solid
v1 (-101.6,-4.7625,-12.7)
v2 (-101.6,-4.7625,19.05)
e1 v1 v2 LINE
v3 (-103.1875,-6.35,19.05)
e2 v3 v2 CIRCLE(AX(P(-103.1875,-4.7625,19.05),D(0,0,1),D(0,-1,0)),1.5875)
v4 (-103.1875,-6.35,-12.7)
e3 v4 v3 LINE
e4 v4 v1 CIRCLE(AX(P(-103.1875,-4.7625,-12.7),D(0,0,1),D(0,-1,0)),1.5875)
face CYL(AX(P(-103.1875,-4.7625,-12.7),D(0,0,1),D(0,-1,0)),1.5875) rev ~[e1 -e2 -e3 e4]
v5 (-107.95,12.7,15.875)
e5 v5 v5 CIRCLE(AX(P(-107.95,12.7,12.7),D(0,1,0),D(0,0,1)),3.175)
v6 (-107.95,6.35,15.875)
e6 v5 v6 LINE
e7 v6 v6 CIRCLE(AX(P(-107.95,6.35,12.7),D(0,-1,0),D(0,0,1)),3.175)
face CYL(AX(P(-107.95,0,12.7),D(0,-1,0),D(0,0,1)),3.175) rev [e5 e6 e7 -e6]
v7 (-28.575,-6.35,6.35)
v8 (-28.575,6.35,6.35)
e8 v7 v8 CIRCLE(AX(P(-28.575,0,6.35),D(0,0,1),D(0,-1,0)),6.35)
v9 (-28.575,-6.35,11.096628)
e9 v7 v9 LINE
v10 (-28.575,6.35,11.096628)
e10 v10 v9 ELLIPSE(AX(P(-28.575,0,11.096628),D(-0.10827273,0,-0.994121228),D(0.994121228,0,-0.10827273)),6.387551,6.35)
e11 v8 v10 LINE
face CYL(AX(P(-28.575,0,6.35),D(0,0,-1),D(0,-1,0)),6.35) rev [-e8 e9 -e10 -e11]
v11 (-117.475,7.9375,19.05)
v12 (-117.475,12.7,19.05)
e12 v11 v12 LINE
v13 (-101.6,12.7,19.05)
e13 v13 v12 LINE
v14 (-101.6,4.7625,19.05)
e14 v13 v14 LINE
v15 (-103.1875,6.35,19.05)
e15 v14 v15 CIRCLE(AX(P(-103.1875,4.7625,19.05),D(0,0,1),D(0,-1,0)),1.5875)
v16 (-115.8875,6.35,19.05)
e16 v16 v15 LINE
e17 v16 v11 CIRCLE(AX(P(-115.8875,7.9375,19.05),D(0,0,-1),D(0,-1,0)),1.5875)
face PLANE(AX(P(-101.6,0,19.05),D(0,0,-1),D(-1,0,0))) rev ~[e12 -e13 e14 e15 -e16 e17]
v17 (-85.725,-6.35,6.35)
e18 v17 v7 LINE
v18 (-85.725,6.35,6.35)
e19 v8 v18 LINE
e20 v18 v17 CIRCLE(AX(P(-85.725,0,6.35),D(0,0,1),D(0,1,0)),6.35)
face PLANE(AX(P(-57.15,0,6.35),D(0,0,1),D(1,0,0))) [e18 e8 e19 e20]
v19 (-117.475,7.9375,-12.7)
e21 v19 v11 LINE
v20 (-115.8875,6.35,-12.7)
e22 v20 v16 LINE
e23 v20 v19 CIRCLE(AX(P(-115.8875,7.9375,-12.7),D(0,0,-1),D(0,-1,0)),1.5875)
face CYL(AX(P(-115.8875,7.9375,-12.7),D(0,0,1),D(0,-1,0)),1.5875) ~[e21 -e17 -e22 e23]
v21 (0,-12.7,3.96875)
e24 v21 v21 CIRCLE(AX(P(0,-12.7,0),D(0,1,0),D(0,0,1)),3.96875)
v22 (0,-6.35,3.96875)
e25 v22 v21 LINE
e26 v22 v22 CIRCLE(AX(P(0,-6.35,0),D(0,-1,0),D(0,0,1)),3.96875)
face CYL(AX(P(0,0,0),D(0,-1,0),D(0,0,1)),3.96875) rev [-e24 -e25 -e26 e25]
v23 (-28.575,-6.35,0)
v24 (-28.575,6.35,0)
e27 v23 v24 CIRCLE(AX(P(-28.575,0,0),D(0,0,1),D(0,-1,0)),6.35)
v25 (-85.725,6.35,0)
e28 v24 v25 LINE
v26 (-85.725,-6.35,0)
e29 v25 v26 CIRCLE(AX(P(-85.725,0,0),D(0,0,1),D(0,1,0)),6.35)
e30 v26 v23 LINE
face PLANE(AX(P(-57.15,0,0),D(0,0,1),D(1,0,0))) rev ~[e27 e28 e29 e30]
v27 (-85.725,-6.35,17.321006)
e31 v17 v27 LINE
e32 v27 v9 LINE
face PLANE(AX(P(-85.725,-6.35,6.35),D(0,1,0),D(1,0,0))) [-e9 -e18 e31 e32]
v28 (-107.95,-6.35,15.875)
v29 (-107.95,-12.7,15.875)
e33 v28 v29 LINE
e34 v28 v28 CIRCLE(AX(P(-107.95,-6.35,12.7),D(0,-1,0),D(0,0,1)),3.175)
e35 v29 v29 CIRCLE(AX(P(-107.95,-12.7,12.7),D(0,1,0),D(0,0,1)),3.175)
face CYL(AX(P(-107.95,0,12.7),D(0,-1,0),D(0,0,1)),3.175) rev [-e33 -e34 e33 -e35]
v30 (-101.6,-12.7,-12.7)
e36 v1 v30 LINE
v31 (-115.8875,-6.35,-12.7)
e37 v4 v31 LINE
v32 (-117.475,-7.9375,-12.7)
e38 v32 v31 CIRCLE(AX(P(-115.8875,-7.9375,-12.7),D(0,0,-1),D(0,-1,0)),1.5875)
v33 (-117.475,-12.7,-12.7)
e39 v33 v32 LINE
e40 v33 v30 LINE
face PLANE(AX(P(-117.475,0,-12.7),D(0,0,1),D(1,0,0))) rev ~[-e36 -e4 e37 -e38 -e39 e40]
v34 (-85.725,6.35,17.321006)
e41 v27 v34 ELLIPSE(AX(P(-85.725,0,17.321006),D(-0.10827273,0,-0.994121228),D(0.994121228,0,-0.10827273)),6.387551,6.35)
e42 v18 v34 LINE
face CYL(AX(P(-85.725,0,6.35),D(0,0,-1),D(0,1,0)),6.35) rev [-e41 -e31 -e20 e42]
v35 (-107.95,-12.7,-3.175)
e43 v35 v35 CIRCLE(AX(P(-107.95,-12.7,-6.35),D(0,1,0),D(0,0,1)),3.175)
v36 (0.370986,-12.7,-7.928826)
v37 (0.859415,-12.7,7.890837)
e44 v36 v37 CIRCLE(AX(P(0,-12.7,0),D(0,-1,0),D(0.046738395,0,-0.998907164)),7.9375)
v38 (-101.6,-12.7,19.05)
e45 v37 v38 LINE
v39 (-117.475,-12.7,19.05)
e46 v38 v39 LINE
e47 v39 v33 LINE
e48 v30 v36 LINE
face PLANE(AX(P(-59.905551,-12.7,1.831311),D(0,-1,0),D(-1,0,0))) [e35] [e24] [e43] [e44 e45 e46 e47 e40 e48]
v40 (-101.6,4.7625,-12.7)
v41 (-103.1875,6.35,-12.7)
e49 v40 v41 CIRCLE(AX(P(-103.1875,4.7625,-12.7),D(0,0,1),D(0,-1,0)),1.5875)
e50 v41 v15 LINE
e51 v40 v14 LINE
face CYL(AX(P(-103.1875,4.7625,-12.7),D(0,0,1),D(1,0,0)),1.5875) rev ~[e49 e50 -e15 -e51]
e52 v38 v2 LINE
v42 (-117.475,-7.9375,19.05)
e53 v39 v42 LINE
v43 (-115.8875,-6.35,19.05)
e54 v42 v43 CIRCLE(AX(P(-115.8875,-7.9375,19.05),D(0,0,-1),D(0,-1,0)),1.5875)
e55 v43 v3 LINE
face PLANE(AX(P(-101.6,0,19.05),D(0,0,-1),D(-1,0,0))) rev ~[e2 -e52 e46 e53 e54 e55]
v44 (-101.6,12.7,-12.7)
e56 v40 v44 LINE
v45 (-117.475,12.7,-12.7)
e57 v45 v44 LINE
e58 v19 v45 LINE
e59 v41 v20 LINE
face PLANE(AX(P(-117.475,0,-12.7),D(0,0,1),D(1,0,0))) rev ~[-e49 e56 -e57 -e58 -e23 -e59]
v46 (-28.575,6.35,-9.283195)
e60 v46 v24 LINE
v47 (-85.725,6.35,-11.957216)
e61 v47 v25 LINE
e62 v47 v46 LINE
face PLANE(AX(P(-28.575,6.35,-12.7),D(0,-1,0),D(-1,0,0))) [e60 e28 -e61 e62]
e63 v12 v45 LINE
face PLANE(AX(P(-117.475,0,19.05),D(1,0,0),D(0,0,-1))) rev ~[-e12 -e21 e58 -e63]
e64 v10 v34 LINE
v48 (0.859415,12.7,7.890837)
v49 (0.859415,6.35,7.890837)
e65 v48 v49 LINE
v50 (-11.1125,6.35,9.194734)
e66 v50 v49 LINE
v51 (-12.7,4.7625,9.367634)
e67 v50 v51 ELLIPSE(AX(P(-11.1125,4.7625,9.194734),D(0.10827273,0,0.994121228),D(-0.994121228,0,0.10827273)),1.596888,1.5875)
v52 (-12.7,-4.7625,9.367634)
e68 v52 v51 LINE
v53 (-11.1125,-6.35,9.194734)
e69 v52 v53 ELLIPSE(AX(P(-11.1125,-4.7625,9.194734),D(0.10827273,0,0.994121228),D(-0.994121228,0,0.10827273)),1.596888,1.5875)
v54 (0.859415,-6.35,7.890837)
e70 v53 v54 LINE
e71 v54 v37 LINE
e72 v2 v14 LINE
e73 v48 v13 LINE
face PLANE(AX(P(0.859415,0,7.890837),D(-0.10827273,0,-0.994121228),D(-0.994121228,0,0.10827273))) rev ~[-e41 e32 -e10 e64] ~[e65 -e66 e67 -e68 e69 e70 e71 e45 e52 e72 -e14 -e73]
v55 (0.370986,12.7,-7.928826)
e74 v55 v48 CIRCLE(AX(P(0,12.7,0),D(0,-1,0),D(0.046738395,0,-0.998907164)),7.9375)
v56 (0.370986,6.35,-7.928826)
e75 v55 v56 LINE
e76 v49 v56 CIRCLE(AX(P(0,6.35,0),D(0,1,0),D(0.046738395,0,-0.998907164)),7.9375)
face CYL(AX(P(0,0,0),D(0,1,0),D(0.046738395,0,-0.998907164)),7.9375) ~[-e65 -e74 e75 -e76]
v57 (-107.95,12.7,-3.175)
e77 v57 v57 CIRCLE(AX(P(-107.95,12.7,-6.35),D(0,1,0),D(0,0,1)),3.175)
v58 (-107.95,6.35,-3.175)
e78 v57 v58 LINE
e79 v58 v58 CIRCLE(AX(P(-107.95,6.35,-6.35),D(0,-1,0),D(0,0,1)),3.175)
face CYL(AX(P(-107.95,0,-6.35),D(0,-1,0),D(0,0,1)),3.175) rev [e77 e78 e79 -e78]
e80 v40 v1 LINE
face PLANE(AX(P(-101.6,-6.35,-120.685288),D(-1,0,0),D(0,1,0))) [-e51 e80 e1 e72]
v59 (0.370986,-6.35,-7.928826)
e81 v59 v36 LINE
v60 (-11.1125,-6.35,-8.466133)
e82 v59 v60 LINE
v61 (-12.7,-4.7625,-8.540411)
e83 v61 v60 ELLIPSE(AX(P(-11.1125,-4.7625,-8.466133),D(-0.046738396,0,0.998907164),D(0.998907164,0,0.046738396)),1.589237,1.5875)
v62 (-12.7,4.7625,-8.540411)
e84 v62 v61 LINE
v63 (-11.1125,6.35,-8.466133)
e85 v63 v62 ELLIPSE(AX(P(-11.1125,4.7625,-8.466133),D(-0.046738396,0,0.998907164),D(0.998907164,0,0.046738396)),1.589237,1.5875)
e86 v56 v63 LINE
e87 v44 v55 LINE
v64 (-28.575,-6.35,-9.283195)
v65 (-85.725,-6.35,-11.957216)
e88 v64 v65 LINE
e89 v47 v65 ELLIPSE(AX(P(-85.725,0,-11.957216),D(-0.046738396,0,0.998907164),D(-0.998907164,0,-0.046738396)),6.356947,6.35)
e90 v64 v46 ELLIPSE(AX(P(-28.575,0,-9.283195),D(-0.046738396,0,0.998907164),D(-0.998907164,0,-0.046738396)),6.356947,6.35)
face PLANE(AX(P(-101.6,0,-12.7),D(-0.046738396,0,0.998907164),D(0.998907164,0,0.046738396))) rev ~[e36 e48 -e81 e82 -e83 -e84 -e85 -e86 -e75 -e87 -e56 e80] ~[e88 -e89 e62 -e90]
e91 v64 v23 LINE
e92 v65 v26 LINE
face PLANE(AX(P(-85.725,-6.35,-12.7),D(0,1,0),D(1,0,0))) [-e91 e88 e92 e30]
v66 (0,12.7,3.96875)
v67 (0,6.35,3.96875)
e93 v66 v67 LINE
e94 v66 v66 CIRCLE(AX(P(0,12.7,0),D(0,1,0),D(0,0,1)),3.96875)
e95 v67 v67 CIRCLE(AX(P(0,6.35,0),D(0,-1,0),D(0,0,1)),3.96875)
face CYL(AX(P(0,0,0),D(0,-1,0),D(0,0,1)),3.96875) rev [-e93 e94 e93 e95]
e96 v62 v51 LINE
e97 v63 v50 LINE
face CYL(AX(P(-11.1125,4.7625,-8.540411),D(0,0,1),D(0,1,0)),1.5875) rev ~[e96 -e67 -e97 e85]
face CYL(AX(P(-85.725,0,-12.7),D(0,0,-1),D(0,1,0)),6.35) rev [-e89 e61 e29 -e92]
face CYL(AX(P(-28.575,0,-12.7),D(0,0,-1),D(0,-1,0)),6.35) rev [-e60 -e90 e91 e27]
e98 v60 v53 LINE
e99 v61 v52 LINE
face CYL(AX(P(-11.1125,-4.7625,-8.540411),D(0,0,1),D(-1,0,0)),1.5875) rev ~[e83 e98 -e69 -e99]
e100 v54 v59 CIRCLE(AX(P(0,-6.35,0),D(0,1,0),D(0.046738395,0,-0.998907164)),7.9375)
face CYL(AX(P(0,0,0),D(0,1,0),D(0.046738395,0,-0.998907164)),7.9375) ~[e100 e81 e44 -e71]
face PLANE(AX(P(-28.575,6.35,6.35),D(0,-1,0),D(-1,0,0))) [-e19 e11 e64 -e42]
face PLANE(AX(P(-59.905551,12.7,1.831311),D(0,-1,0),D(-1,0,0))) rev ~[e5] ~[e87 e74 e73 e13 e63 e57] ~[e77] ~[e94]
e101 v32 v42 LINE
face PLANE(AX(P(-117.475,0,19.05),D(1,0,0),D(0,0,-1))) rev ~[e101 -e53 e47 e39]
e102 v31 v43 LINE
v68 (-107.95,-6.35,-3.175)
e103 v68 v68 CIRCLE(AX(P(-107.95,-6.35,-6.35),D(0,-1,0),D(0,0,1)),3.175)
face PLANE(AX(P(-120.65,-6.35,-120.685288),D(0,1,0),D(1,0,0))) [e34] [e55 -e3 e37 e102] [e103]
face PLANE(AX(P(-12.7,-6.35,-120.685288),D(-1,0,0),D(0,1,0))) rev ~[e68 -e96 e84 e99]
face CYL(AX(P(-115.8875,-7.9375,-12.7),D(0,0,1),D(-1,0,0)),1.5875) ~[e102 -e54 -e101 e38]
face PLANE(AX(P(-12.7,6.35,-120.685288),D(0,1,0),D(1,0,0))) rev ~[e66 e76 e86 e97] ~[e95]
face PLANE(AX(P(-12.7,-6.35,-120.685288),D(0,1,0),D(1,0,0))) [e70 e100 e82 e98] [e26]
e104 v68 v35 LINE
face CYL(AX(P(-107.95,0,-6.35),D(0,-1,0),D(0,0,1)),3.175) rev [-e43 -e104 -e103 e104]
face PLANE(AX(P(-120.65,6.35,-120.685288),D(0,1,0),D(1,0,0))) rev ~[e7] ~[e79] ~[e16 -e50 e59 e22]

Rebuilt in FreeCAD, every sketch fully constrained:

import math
import FreeCAD as App
import Part
import Sketcher
from FreeCAD import Vector
Q = App.Units.Quantity


def edges_at(feature, points):
    """Names of the edges that pass closest to the given points."""
    edges = feature.Shape.Edges
    near = lambda p: min(range(len(edges)), key=lambda i: edges[i].distToShape(Part.Vertex(*p))[0])
    return sorted({f"Edge{near(p) + 1}" for p in points})


def add_polygon(sketch, points):
    """Adds a closed chain of lines whose ends are joined by coincident constraints."""
    first, n = sketch.GeometryCount, len(points)
    for a, b in zip(points, points[1:] + points[:1]):
        sketch.addGeometry(Part.LineSegment(App.Vector(*a, 0), App.Vector(*b, 0)), False)
    for i in range(n):
        sketch.addConstraint(Sketcher.Constraint("Coincident", first + i, 2, first + (i + 1) % n, 1))

doc = App.newDocument("Part")
body = doc.addObject("PartDesign::Body", "Body")

sketch1 = body.newObject("Sketcher::SketchObject", "Sketch")
sketch1.AttachmentSupport = (doc.getObject("XZ_Plane"), [""])
sketch1.MapMode = "FlatFace"
sketch1.addGeometry(Part.LineSegment(Vector(-101.6, -12.7, 0), Vector(-117.475, -12.7, 0)), False)
sketch1.addGeometry(Part.LineSegment(Vector(-117.475, -12.7, 0), Vector(-117.475, 19.05, 0)), False)
sketch1.addGeometry(Part.LineSegment(Vector(-117.475, 19.05, 0), Vector(-101.6, 19.05, 0)), False)
sketch1.addGeometry(Part.LineSegment(Vector(-101.6, 19.05, 0), Vector(0.859415, 7.890837, 0)), False)
sketch1.addGeometry(Part.ArcOfCircle(Part.Circle(Vector(0, 0, 0), Vector(0, 0, 1), 7.9375), math.radians(-87.321111), math.radians(83.784244)), False)
sketch1.addGeometry(Part.LineSegment(Vector(0.370986, -7.928826, 0), Vector(-101.6, -12.7, 0)), False)
sketch1.addGeometry(Part.Circle(Vector(-107.95, 12.7, 0), Vector(0, 0, 1), 3.175), False)
sketch1.addGeometry(Part.Circle(Vector(0, 0, 0), Vector(0, 0, 1), 3.96875), False)
sketch1.addGeometry(Part.Circle(Vector(-107.95, -6.35, 0), Vector(0, 0, 1), 3.175), False)
sketch1.addConstraint(Sketcher.Constraint("Coincident", 0, 2, 1, 1))
sketch1.addConstraint(Sketcher.Constraint("Coincident", 1, 2, 2, 1))
sketch1.addConstraint(Sketcher.Constraint("Coincident", 2, 2, 3, 1))
sketch1.addConstraint(Sketcher.Constraint("Tangent", 3, 2, 4, 2))
sketch1.addConstraint(Sketcher.Constraint("Tangent", 4, 1, 5, 1))
sketch1.addConstraint(Sketcher.Constraint("Coincident", 5, 2, 0, 1))
sketch1.addConstraint(Sketcher.Constraint("Horizontal", 0))
sketch1.addConstraint(Sketcher.Constraint("Vertical", 1))
sketch1.addConstraint(Sketcher.Constraint("Horizontal", 2))
sketch1.addConstraint(Sketcher.Constraint("Coincident", 4, 3, -1, 1))
sketch1.addConstraint(Sketcher.Constraint("Coincident", 7, 3, -1, 1))
sketch1.addConstraint(Sketcher.Constraint("Equal", 6, 8))
sketch1.addConstraint(Sketcher.Constraint("Vertical", 6, 3, 8, 3))
sketch1.addConstraint(Sketcher.Constraint("Vertical", 2, 2, 5, 2))
sketch1.addConstraint(Sketcher.Constraint("Diameter", 6, Q("0.25 in")))
sketch1.addConstraint(Sketcher.Constraint("Diameter", 7, Q("0.3125 in")))
sketch1.addConstraint(Sketcher.Constraint("DistanceX", 2, 2, -1, 1, Q("4 in")))
sketch1.addConstraint(Sketcher.Constraint("Radius", 4, Q("0.3125 in")))
sketch1.addConstraint(Sketcher.Constraint("DistanceY", 0, 2, 6, 3, Q("1 in")))
sketch1.addConstraint(Sketcher.Constraint("DistanceY", 8, 3, 1, 2, Q("1 in")))
sketch1.addConstraint(Sketcher.Constraint("DistanceY", 1, 1, 1, 2, Q("1.25 in")))
sketch1.addConstraint(Sketcher.Constraint("DistanceY", -1, 1, 6, 3, Q("0.5 in")))
sketch1.addConstraint(Sketcher.Constraint("DistanceX", 0, 2, 0, 1, Q("0.625 in")))
sketch1.addConstraint(Sketcher.Constraint("DistanceX", 6, 3, -1, 1, Q("4.25 in")))
pad1 = body.newObject("PartDesign::Pad", "Pad")
pad1.Profile = sketch1
pad1.Length = Q("1 in")
pad1.Midplane = True

sketch2 = body.newObject("Sketcher::SketchObject", "Sketch001")
sketch2.AttachmentSupport = (doc.getObject("XY_Plane"), [""])
sketch2.MapMode = "FlatFace"
add_polygon(sketch2, [(-12.7, 6.35), (-12.7, -6.35), (12.7, -6.35), (12.7, 6.35)])
add_polygon(sketch2, [(-120.65, 6.35), (-120.65, -6.35), (-101.6, -6.35), (-101.6, 6.35)])
sketch2.addConstraint(Sketcher.Constraint("Vertical", 0))
sketch2.addConstraint(Sketcher.Constraint("Horizontal", 1))
sketch2.addConstraint(Sketcher.Constraint("Vertical", 2))
sketch2.addConstraint(Sketcher.Constraint("Horizontal", 3))
sketch2.addConstraint(Sketcher.Constraint("Vertical", 4))
sketch2.addConstraint(Sketcher.Constraint("Horizontal", 5))
sketch2.addConstraint(Sketcher.Constraint("Vertical", 6))
sketch2.addConstraint(Sketcher.Constraint("Horizontal", 7))
sketch2.addConstraint(Sketcher.Constraint("Symmetric", 0, 2, 2, 2, -1, 1))
sketch2.addConstraint(Sketcher.Constraint("Horizontal", 1, 2, 4, 2))
sketch2.addConstraint(Sketcher.Constraint("Horizontal", 3, 2, 6, 2))
sketch2.addConstraint(Sketcher.Constraint("DistanceX", 1, 1, 1, 2, Q("1 in")))
sketch2.addConstraint(Sketcher.Constraint("DistanceY", 0, 2, 0, 1, Q("0.5 in")))
sketch2.addConstraint(Sketcher.Constraint("DistanceX", 5, 2, -1, 1, Q("4 in")))
sketch2.addConstraint(Sketcher.Constraint("DistanceX", 5, 1, 5, 2, Q("0.75 in")))
pocket1 = body.newObject("PartDesign::Pocket", "Pocket")
pocket1.Profile = sketch2
pocket1.Type = "ThroughAll"
pocket1.Midplane = True
doc.recompute()

fillet = body.newObject("PartDesign::Fillet", "Fillet")
fillet.Base = (pocket1, edges_at(pocket1, [
    (-12.7, -6.35, 0.414),
    (-12.7, 6.35, 0.414),
    (-101.6, -6.35, 3.175),
    (-101.6, 6.35, 3.175),
]))
fillet.Radius = Q("0.0625 in")
doc.recompute()

fillet2 = body.newObject("PartDesign::Fillet", "Fillet001")
fillet2.Base = (fillet, edges_at(fillet, [(-117.475, 6.35, 3.175), (-117.475, -6.35, 3.175)]))
fillet2.Radius = Q("0.0625 in")

sketch3 = body.newObject("Sketcher::SketchObject", "Sketch002")
sketch3.AttachmentSupport = (doc.getObject("XY_Plane"), [""])
sketch3.MapMode = "FlatFace"
sketch3.AttachmentOffset = App.Placement(Vector(0, 0, -0.5 * 25.4), App.Rotation())
sketch3.addGeometry(Part.LineSegment(Vector(-85.725, 6.35, 0), Vector(-28.575, 6.35, 0)), False)
sketch3.addGeometry(Part.ArcOfCircle(Part.Circle(Vector(-28.575, 0, 0), Vector(0, 0, 1), 6.35), math.radians(-90), math.radians(90)), False)
sketch3.addGeometry(Part.LineSegment(Vector(-28.575, -6.35, 0), Vector(-85.725, -6.35, 0)), False)
sketch3.addGeometry(Part.ArcOfCircle(Part.Circle(Vector(-85.725, 0, 0), Vector(0, 0, 1), 6.35), math.radians(90), math.radians(270)), False)
sketch3.addConstraint(Sketcher.Constraint("Tangent", 0, 2, 1, 2))
sketch3.addConstraint(Sketcher.Constraint("Tangent", 1, 1, 2, 1))
sketch3.addConstraint(Sketcher.Constraint("Tangent", 2, 2, 3, 2))
sketch3.addConstraint(Sketcher.Constraint("Tangent", 3, 1, 0, 1))
sketch3.addConstraint(Sketcher.Constraint("Horizontal", 0))
sketch3.addConstraint(Sketcher.Constraint("Horizontal", 2))
sketch3.addConstraint(Sketcher.Constraint("PointOnObject", 1, 3, -1))
sketch3.addConstraint(Sketcher.Constraint("Radius", 1, Q("0.25 in")))
sketch3.addConstraint(Sketcher.Constraint("DistanceX", 0, 1, 0, 2, Q("2.25 in")))
sketch3.addConstraint(Sketcher.Constraint("DistanceX", 1, 3, -1, 1, Q("1.125 in")))
pocket2 = body.newObject("PartDesign::Pocket", "Pocket001")
pocket2.Profile = sketch3
pocket2.Length = Q("0.5 in")
pocket2.Reversed = True

sketch4 = body.newObject("Sketcher::SketchObject", "Sketch003")
sketch4.AttachmentSupport = (doc.getObject("XY_Plane"), [""])
sketch4.MapMode = "FlatFace"
sketch4.AttachmentOffset = App.Placement(Vector(0, 0, 0.25 * 25.4), App.Rotation())
sketch4.addGeometry(Part.LineSegment(Vector(-28.575, 6.35, 0), Vector(-85.725, 6.35, 0)), False)
sketch4.addGeometry(Part.ArcOfCircle(Part.Circle(Vector(-85.725, 0, 0), Vector(0, 0, 1), 6.35), math.radians(90), math.radians(270)), False)
sketch4.addGeometry(Part.LineSegment(Vector(-85.725, -6.35, 0), Vector(-28.575, -6.35, 0)), False)
sketch4.addGeometry(Part.ArcOfCircle(Part.Circle(Vector(-28.575, 0, 0), Vector(0, 0, 1), 6.35), math.radians(-90), math.radians(90)), False)
sketch4.addConstraint(Sketcher.Constraint("Tangent", 0, 2, 1, 1))
sketch4.addConstraint(Sketcher.Constraint("Tangent", 1, 2, 2, 1))
sketch4.addConstraint(Sketcher.Constraint("Tangent", 2, 2, 3, 1))
sketch4.addConstraint(Sketcher.Constraint("Tangent", 3, 2, 0, 1))
sketch4.addConstraint(Sketcher.Constraint("Horizontal", 0))
sketch4.addConstraint(Sketcher.Constraint("Horizontal", 2))
sketch4.addConstraint(Sketcher.Constraint("PointOnObject", 1, 3, -1))
sketch4.addConstraint(Sketcher.Constraint("Radius", 1, Q("0.25 in")))
sketch4.addConstraint(Sketcher.Constraint("DistanceX", 0, 2, 0, 1, Q("2.25 in")))
sketch4.addConstraint(Sketcher.Constraint("DistanceX", 1, 3, -1, 1, Q("3.375 in")))
pocket3 = body.newObject("PartDesign::Pocket", "Pocket002")
pocket3.Profile = sketch4
pocket3.Length = Q("0.5 in")
pocket3.Reversed = True

doc.recompute()
